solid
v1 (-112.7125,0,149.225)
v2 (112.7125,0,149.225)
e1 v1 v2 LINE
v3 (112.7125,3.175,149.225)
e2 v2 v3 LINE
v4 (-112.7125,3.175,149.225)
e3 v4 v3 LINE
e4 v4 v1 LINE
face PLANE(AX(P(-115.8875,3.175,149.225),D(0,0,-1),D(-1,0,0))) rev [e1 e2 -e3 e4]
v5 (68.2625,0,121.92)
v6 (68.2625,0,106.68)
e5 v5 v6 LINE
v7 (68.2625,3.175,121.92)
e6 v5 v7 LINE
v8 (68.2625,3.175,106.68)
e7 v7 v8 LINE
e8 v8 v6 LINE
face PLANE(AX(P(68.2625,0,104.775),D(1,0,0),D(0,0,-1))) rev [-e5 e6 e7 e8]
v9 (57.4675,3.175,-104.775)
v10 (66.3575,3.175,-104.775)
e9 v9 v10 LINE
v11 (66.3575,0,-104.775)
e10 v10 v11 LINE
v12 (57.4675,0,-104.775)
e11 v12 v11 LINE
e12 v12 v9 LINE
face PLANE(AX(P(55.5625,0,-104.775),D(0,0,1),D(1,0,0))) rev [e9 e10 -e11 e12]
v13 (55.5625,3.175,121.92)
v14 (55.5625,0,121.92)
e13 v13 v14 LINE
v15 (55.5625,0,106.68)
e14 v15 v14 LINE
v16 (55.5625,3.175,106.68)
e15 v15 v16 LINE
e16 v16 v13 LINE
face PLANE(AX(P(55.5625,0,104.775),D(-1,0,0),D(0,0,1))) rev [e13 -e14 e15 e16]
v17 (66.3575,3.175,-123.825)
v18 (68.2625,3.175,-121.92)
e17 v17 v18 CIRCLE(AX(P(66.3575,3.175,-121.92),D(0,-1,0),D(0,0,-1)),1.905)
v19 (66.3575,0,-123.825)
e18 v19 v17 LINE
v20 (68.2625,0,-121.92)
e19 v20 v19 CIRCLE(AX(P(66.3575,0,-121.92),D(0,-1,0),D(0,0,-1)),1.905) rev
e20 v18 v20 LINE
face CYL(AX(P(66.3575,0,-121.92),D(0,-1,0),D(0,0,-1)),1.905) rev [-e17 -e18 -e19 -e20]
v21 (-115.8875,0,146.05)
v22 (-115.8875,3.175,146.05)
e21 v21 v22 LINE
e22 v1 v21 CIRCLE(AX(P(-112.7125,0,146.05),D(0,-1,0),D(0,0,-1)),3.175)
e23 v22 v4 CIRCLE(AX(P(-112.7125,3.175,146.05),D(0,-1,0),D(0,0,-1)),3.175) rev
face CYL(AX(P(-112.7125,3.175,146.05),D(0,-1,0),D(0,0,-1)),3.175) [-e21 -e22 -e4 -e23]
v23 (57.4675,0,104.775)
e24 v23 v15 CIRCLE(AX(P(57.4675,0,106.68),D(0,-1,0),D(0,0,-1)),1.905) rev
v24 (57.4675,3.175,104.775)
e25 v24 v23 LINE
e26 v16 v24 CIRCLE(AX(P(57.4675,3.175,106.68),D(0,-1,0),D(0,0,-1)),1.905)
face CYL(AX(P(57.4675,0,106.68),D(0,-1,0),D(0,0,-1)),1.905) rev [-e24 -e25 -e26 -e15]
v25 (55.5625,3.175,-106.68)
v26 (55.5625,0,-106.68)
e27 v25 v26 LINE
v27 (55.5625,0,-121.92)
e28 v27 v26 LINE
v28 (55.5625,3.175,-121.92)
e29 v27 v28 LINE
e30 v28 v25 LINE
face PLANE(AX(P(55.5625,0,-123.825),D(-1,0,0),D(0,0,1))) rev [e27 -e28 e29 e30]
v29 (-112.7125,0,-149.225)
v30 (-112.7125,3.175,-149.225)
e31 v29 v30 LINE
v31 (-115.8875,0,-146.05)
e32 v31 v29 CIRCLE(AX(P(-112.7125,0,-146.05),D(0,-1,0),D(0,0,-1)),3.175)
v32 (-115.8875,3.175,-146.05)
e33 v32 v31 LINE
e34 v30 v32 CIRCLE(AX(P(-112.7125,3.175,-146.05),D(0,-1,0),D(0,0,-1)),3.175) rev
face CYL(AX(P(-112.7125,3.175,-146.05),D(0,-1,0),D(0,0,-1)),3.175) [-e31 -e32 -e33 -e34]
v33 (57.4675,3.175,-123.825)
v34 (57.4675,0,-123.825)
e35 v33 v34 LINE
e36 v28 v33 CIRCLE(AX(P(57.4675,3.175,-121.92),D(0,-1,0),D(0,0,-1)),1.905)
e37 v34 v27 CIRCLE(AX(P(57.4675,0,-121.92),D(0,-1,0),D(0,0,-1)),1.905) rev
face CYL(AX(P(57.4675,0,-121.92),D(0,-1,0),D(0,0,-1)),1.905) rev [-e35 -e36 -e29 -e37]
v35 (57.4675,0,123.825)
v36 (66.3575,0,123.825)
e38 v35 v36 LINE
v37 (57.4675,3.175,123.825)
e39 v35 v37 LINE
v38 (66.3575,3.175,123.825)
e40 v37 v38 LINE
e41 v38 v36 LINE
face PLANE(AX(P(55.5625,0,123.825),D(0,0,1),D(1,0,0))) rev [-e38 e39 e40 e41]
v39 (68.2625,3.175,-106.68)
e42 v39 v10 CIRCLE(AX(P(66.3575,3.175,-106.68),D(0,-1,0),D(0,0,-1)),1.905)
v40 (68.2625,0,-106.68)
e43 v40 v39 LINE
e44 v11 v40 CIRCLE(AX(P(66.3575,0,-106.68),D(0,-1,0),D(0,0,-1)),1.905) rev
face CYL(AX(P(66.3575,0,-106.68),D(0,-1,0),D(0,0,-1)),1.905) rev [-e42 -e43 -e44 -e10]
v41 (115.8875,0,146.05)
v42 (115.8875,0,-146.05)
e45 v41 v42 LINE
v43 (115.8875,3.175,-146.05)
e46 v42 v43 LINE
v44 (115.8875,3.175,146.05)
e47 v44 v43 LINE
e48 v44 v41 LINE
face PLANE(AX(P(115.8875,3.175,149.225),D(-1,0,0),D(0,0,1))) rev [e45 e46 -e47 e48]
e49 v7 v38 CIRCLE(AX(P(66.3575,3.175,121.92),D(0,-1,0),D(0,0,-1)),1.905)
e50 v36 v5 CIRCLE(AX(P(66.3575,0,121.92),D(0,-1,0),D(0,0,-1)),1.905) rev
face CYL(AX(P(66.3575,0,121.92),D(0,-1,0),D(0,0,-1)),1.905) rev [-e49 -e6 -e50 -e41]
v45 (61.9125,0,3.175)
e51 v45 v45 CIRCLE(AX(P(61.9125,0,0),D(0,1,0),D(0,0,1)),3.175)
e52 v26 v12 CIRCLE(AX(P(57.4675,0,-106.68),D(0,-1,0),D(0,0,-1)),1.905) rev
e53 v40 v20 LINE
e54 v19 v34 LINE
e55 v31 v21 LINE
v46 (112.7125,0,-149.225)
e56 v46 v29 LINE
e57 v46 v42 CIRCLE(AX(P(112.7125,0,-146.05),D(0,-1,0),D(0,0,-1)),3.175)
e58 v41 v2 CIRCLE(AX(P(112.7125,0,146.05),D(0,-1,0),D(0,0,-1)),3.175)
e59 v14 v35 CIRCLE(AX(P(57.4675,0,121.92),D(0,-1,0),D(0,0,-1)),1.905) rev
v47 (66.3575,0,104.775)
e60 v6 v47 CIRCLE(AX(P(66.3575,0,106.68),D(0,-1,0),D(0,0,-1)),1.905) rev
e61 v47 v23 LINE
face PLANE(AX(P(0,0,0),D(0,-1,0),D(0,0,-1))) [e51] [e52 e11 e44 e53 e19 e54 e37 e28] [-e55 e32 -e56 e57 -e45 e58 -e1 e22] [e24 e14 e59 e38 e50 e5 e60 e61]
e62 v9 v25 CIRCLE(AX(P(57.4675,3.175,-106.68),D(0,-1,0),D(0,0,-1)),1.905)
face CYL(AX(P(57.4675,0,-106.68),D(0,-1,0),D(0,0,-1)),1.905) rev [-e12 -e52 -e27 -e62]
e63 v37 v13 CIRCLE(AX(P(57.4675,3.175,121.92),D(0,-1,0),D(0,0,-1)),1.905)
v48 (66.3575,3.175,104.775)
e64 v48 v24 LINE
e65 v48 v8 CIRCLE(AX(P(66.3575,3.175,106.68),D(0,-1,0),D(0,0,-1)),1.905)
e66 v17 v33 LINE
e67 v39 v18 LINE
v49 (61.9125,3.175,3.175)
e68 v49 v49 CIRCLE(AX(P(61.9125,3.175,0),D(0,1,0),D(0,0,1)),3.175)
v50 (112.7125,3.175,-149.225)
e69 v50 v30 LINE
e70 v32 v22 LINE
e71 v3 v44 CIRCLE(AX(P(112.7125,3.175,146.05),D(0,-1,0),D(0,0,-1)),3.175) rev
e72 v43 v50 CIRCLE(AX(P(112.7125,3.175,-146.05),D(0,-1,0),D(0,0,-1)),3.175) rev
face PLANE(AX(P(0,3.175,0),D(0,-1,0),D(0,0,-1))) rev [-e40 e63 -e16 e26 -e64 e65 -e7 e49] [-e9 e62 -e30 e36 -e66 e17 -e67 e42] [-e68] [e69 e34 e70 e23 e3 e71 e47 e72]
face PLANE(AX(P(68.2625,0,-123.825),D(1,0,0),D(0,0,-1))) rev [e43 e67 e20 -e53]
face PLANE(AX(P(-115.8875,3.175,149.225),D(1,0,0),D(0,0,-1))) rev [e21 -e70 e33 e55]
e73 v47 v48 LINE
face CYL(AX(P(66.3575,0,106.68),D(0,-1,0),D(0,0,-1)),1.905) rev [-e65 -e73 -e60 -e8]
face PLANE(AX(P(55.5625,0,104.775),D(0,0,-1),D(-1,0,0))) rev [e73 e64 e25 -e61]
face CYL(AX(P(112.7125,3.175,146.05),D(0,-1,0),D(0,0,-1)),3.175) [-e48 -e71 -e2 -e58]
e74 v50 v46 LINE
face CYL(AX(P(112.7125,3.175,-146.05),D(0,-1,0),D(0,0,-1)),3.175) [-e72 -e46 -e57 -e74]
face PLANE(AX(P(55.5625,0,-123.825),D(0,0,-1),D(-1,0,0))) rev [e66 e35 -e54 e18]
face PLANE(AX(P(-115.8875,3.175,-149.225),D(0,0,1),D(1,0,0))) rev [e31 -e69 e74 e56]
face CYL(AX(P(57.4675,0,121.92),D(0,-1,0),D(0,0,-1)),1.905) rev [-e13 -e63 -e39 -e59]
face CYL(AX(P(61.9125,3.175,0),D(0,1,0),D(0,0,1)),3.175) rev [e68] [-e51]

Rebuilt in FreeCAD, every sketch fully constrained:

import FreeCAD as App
import Part
import Sketcher
Q = App.Units.Quantity


def edges_at(feature, points):
    """Names of the edges that pass closest to the given points."""
    edges = feature.Shape.Edges
    near = lambda p: min(range(len(edges)), key=lambda i: edges[i].distToShape(Part.Vertex(*p))[0])
    return sorted({f"Edge{near(p) + 1}" for p in points})


def add_polygon(sketch, points):
    """Adds a closed chain of lines whose ends are joined by coincident constraints."""
    first, n = sketch.GeometryCount, len(points)
    for a, b in zip(points, points[1:] + points[:1]):
        sketch.addGeometry(Part.LineSegment(App.Vector(*a, 0), App.Vector(*b, 0)), False)
    for i in range(n):
        sketch.addConstraint(Sketcher.Constraint("Coincident", first + i, 2, first + (i + 1) % n, 1))

doc = App.newDocument("Part")
body = doc.addObject("PartDesign::Body", "Body")

sketch1 = body.newObject("Sketcher::SketchObject", "Sketch")
sketch1.AttachmentSupport = (doc.getObject("XZ_Plane"), [""])
sketch1.MapMode = "FlatFace"
add_polygon(sketch1, [(-116, -149), (-116, 149), (116, 149), (116, -149)])
sketch1.addConstraint(Sketcher.Constraint("Vertical", 0))
sketch1.addConstraint(Sketcher.Constraint("Horizontal", 1))
sketch1.addConstraint(Sketcher.Constraint("Vertical", 2))
sketch1.addConstraint(Sketcher.Constraint("Horizontal", 3))
sketch1.addConstraint(Sketcher.Constraint("Symmetric", 0, 2, 2, 2, -1, 1))
sketch1.addConstraint(Sketcher.Constraint("DistanceY", 0, 1, 0, 2, Q("11.75 in")))
sketch1.addConstraint(Sketcher.Constraint("DistanceX", 1, 1, 1, 2, Q("9.125 in")))
pad1 = body.newObject("PartDesign::Pad", "Pad")
pad1.Profile = sketch1
pad1.Length = Q("0.125 in")
pad1.Reversed = True

sketch2 = body.newObject("Sketcher::SketchObject", "Sketch001")
sketch2.AttachmentSupport = (doc.getObject("XZ_Plane"), [""])
sketch2.MapMode = "FlatFace"
sketch2.AttachmentOffset = App.Placement(App.Vector(0, 0, -0.125 * 25.4), App.Rotation())
sketch2.addGeometry(Part.Circle(App.Vector(61.9, 0, 0), App.Vector(0, 0, 1), 3.2), False)
sketch2.addConstraint(Sketcher.Constraint("PointOnObject", 0, 3, -1))
sketch2.addConstraint(Sketcher.Constraint("Diameter", 0, Q("0.25 in")))
sketch2.addConstraint(Sketcher.Constraint("DistanceX", -1, 1, 0, 3, Q("2.4375 in")))
doc.recompute()
hole = body.newObject("PartDesign::Hole", "Hole")
hole.Profile = sketch2
hole.ThreadType = "None"
hole.Diameter = Q("0.25 in")
hole.DepthType = "ThroughAll"
hole.Reversed = True
doc.recompute()

fillet = body.newObject("PartDesign::Fillet", "Fillet")
fillet.Base = (hole, edges_at(hole, [
    (115.888, 1.587, 149.225),
    (-115.888, 1.587, 149.225),
    (-115.888, 1.587, -149.225),
    (115.888, 1.587, -149.225),
]))
fillet.Radius = Q("0.125 in")

sketch3 = body.newObject("Sketcher::SketchObject", "Sketch002")
sketch3.AttachmentSupport = (doc.getObject("XZ_Plane"), [""])
sketch3.MapMode = "FlatFace"
sketch3.AttachmentOffset = App.Placement(App.Vector(0, 0, -0.125 * 25.4), App.Rotation())
add_polygon(sketch3, [(56, 105), (56, 124), (68, 124), (68, 105)])
add_polygon(sketch3, [(56, -124), (56, -105), (68, -105), (68, -124)])
sketch3.addConstraint(Sketcher.Constraint("Vertical", 0))
sketch3.addConstraint(Sketcher.Constraint("Horizontal", 1))
sketch3.addConstraint(Sketcher.Constraint("Vertical", 2))
sketch3.addConstraint(Sketcher.Constraint("Horizontal", 3))
sketch3.addConstraint(Sketcher.Constraint("Vertical", 4))
sketch3.addConstraint(Sketcher.Constraint("Horizontal", 5))
sketch3.addConstraint(Sketcher.Constraint("Vertical", 6))
sketch3.addConstraint(Sketcher.Constraint("Horizontal", 7))
sketch3.addConstraint(Sketcher.Constraint("Symmetric", 3, 2, 4, 2, -1))
sketch3.addConstraint(Sketcher.Constraint("Symmetric", 1, 2, 6, 2, -1))
sketch3.addConstraint(Sketcher.Constraint("DistanceX", 1, 1, 1, 2, Q("0.5 in")))
sketch3.addConstraint(Sketcher.Constraint("DistanceY", 4, 2, 0, 2, Q("9 in")))
sketch3.addConstraint(Sketcher.Constraint("DistanceY", 0, 1, 0, 2, Q("0.75 in")))
sketch3.addConstraint(Sketcher.Constraint("DistanceX", -1, 1, 0, 2, Q("2.1875 in")))
pocket1 = body.newObject("PartDesign::Pocket", "Pocket")
pocket1.Profile = sketch3
pocket1.Type = "ThroughAll"
pocket1.Reversed = True
doc.recompute()

fillet2 = body.newObject("PartDesign::Fillet", "Fillet001")
fillet2.Base = (pocket1, edges_at(pocket1, [
    (55.562, 1.587, 123.825),
    (55.562, 1.587, 104.775),
    (68.263, 1.587, 104.775),
    (68.263, 1.587, 123.825),
    (55.562, 1.587, -104.775),
    (55.562, 1.587, -123.825),
    (68.263, 1.587, -123.825),
    (68.263, 1.587, -104.775),
]))
fillet2.Radius = Q("0.075 in")

doc.recompute()
